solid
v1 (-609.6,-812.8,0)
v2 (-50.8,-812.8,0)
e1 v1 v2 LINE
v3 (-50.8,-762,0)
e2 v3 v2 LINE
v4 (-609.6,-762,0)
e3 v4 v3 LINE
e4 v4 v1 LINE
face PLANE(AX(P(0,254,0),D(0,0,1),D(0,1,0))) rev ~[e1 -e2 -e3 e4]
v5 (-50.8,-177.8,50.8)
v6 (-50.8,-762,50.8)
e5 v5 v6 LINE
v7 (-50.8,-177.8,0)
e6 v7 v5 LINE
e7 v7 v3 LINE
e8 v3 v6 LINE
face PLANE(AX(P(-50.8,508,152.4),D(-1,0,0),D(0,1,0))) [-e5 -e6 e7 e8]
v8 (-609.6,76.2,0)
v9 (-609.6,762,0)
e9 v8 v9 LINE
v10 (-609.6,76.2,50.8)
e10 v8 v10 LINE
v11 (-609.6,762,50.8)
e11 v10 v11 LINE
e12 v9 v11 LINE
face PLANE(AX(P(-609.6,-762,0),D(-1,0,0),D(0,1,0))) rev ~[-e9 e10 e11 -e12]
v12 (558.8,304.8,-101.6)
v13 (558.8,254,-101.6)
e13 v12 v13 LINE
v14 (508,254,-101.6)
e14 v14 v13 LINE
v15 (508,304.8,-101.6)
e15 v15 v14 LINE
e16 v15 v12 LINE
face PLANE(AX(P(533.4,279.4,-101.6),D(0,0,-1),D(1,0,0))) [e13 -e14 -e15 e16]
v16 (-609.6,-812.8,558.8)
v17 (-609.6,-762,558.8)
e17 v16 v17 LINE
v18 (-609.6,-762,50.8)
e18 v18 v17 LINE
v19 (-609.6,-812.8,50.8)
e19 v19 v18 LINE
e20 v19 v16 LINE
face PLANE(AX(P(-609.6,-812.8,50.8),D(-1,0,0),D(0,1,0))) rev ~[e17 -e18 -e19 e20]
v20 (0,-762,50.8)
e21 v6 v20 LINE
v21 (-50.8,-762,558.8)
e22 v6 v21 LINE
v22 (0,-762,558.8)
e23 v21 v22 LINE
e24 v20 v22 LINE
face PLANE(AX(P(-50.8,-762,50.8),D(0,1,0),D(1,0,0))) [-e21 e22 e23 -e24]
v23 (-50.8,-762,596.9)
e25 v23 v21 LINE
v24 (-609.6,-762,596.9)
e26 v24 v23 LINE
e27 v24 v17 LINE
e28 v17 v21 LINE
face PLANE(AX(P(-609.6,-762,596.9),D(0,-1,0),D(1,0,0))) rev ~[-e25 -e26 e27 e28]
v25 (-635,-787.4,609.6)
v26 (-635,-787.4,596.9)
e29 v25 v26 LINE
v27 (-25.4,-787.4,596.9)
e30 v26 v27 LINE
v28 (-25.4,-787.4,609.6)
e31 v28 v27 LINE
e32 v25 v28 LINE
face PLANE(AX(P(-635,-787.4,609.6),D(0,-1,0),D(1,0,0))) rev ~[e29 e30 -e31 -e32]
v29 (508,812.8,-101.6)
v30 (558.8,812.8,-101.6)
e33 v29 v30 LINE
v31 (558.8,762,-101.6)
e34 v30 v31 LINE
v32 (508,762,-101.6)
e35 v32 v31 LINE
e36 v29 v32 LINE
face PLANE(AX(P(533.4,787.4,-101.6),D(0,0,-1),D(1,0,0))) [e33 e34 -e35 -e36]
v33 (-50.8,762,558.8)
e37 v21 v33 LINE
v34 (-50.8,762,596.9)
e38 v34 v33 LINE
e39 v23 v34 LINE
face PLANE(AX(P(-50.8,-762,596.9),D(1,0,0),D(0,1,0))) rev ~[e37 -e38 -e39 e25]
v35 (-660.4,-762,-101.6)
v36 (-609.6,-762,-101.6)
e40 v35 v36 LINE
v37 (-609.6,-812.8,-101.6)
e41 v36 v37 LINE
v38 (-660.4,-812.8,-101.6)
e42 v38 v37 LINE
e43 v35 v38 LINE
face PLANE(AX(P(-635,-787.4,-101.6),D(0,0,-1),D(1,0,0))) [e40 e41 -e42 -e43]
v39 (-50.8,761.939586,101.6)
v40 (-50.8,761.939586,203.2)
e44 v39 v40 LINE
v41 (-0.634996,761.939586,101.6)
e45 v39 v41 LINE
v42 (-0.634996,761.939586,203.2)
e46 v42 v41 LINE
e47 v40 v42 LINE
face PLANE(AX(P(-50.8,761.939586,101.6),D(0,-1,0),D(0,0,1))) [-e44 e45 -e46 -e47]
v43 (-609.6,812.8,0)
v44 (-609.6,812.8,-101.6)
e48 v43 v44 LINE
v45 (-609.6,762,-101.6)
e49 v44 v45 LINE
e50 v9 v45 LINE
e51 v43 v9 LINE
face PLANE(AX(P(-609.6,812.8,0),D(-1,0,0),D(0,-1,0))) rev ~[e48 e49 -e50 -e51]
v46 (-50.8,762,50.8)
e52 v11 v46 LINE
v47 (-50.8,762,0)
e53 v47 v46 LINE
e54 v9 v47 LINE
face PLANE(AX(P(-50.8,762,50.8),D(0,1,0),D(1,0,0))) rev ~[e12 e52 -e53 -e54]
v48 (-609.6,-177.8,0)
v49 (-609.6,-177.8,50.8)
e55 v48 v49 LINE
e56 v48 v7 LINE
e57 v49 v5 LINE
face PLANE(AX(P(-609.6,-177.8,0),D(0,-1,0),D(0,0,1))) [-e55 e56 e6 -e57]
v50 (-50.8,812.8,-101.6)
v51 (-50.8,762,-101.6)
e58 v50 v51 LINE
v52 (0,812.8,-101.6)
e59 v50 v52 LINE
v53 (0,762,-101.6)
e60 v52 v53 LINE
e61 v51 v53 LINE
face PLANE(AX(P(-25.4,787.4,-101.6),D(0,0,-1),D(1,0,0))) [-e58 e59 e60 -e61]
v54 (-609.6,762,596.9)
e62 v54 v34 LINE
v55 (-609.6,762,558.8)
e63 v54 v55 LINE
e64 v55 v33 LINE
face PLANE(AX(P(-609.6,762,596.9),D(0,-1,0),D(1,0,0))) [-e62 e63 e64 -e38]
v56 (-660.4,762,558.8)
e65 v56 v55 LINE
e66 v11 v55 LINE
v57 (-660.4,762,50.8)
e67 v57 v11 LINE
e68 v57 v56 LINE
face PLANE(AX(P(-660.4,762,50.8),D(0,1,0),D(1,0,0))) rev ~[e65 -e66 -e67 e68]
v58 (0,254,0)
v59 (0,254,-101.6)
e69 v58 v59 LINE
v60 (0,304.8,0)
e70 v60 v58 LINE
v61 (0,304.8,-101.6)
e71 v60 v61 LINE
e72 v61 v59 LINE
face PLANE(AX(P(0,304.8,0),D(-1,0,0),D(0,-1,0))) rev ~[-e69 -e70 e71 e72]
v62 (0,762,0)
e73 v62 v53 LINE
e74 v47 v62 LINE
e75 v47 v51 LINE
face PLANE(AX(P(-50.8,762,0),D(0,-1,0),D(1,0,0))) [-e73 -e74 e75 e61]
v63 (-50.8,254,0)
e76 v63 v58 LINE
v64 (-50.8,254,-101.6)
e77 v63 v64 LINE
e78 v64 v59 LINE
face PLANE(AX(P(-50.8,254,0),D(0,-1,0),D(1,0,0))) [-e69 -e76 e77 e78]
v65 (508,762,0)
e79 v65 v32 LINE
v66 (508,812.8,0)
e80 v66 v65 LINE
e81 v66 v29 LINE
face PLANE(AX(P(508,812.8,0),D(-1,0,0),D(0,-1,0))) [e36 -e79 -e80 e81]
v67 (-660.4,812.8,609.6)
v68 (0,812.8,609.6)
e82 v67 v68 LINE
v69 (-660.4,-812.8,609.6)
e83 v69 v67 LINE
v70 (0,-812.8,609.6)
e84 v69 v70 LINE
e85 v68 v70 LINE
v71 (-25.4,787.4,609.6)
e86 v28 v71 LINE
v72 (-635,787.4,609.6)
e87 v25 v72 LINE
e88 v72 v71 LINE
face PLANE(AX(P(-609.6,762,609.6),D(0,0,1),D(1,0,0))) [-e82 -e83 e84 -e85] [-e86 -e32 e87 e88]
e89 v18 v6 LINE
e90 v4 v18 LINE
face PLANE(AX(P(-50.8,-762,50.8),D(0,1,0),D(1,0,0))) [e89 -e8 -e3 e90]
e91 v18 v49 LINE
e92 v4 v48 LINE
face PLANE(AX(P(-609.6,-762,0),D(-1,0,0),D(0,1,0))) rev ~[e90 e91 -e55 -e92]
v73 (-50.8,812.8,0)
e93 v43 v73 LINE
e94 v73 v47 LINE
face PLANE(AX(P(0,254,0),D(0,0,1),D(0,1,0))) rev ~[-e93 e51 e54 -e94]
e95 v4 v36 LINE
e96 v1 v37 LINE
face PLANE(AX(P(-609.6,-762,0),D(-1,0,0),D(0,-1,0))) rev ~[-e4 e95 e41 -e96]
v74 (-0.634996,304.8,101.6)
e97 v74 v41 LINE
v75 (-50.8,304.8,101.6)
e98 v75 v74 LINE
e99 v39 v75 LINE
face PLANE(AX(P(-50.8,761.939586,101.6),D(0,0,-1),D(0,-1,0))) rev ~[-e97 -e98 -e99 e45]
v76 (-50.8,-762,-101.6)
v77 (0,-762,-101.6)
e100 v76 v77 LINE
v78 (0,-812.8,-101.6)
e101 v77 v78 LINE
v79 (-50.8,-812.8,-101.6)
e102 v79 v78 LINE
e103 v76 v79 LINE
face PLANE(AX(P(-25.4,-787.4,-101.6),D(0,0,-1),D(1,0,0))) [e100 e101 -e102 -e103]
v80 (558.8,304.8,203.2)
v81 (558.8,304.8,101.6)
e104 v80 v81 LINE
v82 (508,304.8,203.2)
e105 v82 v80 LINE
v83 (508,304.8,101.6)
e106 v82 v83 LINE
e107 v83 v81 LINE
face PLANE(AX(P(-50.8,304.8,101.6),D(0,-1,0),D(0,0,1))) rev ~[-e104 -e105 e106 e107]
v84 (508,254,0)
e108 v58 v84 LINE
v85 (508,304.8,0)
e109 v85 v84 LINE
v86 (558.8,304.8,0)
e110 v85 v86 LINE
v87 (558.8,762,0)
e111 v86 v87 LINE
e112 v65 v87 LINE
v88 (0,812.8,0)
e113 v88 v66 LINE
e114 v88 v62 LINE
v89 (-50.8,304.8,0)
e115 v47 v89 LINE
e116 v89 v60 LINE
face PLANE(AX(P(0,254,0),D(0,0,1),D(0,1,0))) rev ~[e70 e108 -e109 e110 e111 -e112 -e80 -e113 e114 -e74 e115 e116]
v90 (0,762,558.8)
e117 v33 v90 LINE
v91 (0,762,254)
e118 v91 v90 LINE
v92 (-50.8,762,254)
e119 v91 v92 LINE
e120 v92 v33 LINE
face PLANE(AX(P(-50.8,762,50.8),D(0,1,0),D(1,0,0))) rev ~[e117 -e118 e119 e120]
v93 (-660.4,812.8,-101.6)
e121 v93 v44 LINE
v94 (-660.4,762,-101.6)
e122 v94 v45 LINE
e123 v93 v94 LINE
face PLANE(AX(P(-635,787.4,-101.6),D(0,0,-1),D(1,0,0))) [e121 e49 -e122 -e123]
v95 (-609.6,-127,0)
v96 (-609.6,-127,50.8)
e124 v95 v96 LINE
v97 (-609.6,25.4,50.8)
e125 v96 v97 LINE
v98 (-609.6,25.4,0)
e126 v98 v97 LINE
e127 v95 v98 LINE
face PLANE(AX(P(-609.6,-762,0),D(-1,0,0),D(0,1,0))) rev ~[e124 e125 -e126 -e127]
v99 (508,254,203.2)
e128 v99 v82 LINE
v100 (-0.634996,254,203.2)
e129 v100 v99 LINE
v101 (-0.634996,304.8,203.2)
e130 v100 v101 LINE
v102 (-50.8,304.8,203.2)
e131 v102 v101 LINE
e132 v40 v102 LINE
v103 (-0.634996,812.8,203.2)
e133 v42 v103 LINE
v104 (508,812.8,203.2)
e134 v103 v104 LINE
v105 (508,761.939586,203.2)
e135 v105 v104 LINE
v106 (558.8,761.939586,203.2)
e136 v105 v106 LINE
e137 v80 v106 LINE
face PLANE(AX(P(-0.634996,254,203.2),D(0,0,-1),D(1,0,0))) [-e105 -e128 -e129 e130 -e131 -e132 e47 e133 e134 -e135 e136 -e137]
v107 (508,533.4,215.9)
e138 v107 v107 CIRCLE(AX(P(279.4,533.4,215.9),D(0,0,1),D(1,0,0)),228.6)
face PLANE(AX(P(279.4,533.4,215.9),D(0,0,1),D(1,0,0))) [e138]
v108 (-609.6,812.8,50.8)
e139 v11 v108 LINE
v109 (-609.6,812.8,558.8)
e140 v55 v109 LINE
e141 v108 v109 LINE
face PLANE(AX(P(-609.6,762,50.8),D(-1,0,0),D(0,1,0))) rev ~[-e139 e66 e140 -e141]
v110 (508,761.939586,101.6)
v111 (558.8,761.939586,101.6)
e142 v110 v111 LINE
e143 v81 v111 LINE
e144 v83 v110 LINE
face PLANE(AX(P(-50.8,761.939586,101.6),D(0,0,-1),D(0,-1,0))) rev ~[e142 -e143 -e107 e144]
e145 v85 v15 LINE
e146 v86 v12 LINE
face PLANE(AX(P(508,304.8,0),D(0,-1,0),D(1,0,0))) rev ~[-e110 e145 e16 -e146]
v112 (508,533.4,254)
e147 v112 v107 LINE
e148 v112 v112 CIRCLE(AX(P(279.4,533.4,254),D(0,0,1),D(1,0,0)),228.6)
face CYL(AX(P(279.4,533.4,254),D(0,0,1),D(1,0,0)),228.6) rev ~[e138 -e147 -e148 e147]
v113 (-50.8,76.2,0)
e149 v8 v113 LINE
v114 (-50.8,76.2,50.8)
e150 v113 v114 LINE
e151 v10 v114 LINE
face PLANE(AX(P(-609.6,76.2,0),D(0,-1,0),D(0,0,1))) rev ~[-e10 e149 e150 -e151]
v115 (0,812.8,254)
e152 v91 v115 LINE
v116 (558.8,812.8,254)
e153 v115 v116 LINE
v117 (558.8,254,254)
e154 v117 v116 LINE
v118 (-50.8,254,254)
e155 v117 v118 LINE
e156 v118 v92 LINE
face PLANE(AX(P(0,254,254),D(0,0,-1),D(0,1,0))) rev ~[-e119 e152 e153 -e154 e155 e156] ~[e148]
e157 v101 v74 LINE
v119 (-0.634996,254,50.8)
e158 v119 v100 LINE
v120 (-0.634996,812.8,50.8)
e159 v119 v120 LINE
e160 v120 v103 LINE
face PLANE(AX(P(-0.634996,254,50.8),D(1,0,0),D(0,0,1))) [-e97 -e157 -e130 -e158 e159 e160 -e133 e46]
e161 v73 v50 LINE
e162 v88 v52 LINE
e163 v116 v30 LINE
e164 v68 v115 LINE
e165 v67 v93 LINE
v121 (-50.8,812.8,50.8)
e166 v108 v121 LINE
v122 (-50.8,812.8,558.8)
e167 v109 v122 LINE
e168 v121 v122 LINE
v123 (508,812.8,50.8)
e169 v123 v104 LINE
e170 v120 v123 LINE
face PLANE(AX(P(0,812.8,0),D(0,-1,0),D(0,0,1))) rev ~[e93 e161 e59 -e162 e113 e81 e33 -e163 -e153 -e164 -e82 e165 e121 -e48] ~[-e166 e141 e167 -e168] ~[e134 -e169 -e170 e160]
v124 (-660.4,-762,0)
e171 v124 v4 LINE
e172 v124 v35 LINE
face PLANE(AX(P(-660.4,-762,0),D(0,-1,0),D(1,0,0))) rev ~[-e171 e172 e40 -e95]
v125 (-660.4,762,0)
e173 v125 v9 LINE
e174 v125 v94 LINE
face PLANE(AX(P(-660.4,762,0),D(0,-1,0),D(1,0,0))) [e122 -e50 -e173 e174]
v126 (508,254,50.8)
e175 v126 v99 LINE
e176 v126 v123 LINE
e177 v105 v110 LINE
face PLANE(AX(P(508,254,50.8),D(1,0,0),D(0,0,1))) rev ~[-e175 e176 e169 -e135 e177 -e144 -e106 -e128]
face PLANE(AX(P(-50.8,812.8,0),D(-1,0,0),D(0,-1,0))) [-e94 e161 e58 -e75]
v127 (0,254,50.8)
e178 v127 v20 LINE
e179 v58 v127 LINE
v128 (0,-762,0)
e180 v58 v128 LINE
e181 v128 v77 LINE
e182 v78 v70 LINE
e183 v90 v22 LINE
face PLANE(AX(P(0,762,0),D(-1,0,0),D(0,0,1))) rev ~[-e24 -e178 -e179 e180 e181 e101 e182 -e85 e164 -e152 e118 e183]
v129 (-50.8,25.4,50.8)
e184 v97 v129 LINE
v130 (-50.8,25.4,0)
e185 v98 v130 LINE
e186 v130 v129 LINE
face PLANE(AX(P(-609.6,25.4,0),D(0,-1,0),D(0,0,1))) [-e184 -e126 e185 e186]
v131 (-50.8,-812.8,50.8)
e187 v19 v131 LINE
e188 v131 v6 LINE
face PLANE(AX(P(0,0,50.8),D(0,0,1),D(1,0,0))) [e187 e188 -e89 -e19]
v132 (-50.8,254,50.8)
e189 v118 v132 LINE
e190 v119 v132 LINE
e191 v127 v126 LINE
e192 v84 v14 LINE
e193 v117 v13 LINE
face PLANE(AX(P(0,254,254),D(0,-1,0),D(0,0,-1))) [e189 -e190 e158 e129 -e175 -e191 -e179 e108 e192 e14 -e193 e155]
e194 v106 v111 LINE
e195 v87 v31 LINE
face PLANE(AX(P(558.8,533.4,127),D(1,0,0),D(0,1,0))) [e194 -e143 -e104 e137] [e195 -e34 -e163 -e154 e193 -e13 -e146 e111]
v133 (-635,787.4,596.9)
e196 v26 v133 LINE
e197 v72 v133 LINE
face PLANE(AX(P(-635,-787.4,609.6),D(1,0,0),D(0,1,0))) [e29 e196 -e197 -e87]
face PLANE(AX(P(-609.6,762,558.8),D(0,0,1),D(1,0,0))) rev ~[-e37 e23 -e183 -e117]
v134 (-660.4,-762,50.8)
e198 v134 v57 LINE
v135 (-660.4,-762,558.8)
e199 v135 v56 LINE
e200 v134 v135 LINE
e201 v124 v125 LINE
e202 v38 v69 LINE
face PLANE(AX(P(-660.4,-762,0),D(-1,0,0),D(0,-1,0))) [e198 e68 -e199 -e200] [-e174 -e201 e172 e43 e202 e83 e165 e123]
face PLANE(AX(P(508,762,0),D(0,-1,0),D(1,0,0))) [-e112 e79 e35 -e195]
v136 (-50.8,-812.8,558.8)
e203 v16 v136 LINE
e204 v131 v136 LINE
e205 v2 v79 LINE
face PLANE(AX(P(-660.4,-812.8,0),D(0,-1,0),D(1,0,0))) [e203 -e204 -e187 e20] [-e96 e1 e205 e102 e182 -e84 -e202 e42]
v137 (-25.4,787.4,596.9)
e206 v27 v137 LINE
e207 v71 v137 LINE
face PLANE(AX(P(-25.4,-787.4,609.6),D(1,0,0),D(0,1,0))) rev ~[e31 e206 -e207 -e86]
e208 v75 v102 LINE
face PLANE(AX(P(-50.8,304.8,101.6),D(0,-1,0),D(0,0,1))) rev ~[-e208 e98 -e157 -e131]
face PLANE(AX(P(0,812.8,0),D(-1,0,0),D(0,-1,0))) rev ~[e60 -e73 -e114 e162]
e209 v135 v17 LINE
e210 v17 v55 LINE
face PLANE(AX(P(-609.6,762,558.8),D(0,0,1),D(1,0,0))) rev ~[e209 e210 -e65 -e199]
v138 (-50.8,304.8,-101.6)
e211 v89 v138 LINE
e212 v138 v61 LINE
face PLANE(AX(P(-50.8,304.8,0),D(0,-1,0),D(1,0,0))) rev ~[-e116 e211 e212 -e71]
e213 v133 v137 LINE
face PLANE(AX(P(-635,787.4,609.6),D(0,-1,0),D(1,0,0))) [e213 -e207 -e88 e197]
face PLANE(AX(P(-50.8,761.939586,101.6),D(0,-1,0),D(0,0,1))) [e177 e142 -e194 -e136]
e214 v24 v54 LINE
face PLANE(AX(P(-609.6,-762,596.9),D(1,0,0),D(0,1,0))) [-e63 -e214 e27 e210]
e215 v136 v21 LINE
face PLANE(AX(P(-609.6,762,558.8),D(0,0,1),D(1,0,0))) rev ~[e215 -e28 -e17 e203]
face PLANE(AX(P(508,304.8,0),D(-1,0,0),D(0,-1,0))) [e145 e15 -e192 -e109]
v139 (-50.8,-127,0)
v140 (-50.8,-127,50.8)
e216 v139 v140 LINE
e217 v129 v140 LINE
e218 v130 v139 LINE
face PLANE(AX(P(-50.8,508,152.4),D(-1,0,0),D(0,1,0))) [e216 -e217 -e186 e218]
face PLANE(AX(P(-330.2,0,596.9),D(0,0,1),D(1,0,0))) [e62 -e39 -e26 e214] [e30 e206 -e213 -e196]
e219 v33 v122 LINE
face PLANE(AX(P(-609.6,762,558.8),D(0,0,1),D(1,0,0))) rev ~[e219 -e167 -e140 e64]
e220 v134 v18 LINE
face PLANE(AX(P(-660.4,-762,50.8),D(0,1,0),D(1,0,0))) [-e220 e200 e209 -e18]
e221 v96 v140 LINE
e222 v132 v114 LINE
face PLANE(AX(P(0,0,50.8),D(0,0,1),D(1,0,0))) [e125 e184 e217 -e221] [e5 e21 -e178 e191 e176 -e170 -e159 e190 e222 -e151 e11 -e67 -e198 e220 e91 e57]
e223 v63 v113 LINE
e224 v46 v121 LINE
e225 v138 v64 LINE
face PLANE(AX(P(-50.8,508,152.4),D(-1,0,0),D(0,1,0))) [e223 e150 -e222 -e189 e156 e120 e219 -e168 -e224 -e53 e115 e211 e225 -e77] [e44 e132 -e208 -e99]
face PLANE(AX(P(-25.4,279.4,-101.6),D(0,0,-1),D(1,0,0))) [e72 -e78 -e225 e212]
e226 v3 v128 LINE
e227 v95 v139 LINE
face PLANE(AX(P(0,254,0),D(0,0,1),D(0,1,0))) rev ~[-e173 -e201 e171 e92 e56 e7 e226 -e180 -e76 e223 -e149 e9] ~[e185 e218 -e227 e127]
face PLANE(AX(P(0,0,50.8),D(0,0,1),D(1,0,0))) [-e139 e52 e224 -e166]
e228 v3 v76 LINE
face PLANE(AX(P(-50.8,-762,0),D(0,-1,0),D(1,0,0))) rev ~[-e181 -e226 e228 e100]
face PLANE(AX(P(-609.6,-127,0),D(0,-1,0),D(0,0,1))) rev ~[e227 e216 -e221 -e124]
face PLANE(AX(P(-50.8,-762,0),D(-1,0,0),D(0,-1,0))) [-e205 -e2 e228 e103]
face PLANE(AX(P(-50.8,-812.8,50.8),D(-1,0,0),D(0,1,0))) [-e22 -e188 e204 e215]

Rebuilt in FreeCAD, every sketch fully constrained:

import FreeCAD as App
import Part
import Sketcher
from FreeCAD import Vector
Q = App.Units.Quantity

doc = App.newDocument("Part")
body = doc.addObject("PartDesign::Body", "Body")

# Sketch on XY plane
sketch1 = doc.addObject("Sketcher::SketchObject", "Sketch")
body.addObject(sketch1)
sketch1.AttachmentSupport = (doc.XY_Plane, [""])
sketch1.MapMode = "FlatFace"
sketch1.addGeometry([
    Part.LineSegment(Vector(-660.4, 812.8, 0), Vector(-660.4, -812.8, 0)),  # 0
    Part.LineSegment(Vector(-660.4, -812.8, 0), Vector(660.4, -812.8, 0)),  # 1
    Part.LineSegment(Vector(660.4, -812.8, 0), Vector(660.4, 812.8, 0)),  # 2
    Part.LineSegment(Vector(660.4, 812.8, 0), Vector(-660.4, 812.8, 0)),  # 3
    Part.LineSegment(Vector(609.6, -762, 0), Vector(-609.6, -762, 0)),  # 4
    Part.LineSegment(Vector(-609.6, -762, 0), Vector(-609.6, 762, 0)),  # 5
    Part.LineSegment(Vector(-609.6, 762, 0), Vector(609.6, 762, 0)),  # 6
    Part.LineSegment(Vector(609.6, 762, 0), Vector(609.6, -762, 0)),  # 7
], False)
sketch1.addConstraint([
    Sketcher.Constraint("Coincident", 0, 2, 1, 1),
    Sketcher.Constraint("Coincident", 1, 2, 2, 1),
    Sketcher.Constraint("Coincident", 2, 2, 3, 1),
    Sketcher.Constraint("Coincident", 3, 2, 0, 1),
    Sketcher.Constraint("Coincident", 4, 2, 5, 1),
    Sketcher.Constraint("Coincident", 5, 2, 6, 1),
    Sketcher.Constraint("Coincident", 6, 2, 7, 1),
    Sketcher.Constraint("Coincident", 7, 2, 4, 1),
    Sketcher.Constraint("Vertical", 0),
    Sketcher.Constraint("Horizontal", 1),
    Sketcher.Constraint("Vertical", 2),
    Sketcher.Constraint("Horizontal", 3),
    Sketcher.Constraint("Horizontal", 4),
    Sketcher.Constraint("Vertical", 5),
    Sketcher.Constraint("Horizontal", 6),
    Sketcher.Constraint("Vertical", 7),
    Sketcher.Constraint("Symmetric", 0, 2, 2, 2, -1, 1),
    Sketcher.Constraint("Symmetric", 4, 2, 6, 2, -1, 1),
    Sketcher.Constraint("DistanceX", 1, 1, 1, 2, Q("52 in")),
    Sketcher.Constraint("DistanceX", 4, 2, 4, 1, Q("48 in")),
    Sketcher.Constraint("DistanceY", 0, 2, 0, 1, Q("64 in")),
    Sketcher.Constraint("DistanceY", 5, 1, 5, 2, Q("60 in")),
])
pad1 = doc.addObject("PartDesign::Pad", "Pad")
body.addObject(pad1)
pad1.Profile = sketch1
pad1.Length = Q("2 in")

# Sketch on XY plane
sketch2 = doc.addObject("Sketcher::SketchObject", "Sketch001")
body.addObject(sketch2)
sketch2.AttachmentSupport = (doc.XY_Plane, [""])
sketch2.MapMode = "FlatFace"
sketch2.AttachmentOffset = App.Placement(Vector(0, 0, 2 * 25.4), App.Rotation())
sketch2.addGeometry([
    Part.LineSegment(Vector(-660.4, 812.8, 0), Vector(-660.4, 762, 0)),  # 0
    Part.LineSegment(Vector(-660.4, 762, 0), Vector(-609.6, 762, 0)),  # 1
    Part.LineSegment(Vector(-609.6, 762, 0), Vector(-609.6, 812.8, 0)),  # 2
    Part.LineSegment(Vector(-609.6, 812.8, 0), Vector(-660.4, 812.8, 0)),  # 3
    Part.LineSegment(Vector(609.6, 812.8, 0), Vector(609.6, 762, 0)),  # 4
    Part.LineSegment(Vector(609.6, 762, 0), Vector(660.4, 762, 0)),  # 5
    Part.LineSegment(Vector(660.4, 762, 0), Vector(660.4, 812.8, 0)),  # 6
    Part.LineSegment(Vector(660.4, 812.8, 0), Vector(609.6, 812.8, 0)),  # 7
    Part.LineSegment(Vector(609.6, -762, 0), Vector(609.6, -812.8, 0)),  # 8
    Part.LineSegment(Vector(609.6, -812.8, 0), Vector(660.4, -812.8, 0)),  # 9
    Part.LineSegment(Vector(660.4, -812.8, 0), Vector(660.4, -762, 0)),  # 10
    Part.LineSegment(Vector(660.4, -762, 0), Vector(609.6, -762, 0)),  # 11
    Part.LineSegment(Vector(-660.4, -762, 0), Vector(-660.4, -812.8, 0)),  # 12
    Part.LineSegment(Vector(-660.4, -812.8, 0), Vector(-609.6, -812.8, 0)),  # 13
    Part.LineSegment(Vector(-609.6, -812.8, 0), Vector(-609.6, -762, 0)),  # 14
    Part.LineSegment(Vector(-609.6, -762, 0), Vector(-660.4, -762, 0)),  # 15
], False)
sketch2.addConstraint([
    Sketcher.Constraint("Coincident", 0, 2, 1, 1),
    Sketcher.Constraint("Coincident", 1, 2, 2, 1),
    Sketcher.Constraint("Coincident", 2, 2, 3, 1),
    Sketcher.Constraint("Coincident", 3, 2, 0, 1),
    Sketcher.Constraint("Coincident", 4, 2, 5, 1),
    Sketcher.Constraint("Coincident", 5, 2, 6, 1),
    Sketcher.Constraint("Coincident", 6, 2, 7, 1),
    Sketcher.Constraint("Coincident", 7, 2, 4, 1),
    Sketcher.Constraint("Coincident", 8, 2, 9, 1),
    Sketcher.Constraint("Coincident", 9, 2, 10, 1),
    Sketcher.Constraint("Coincident", 10, 2, 11, 1),
    Sketcher.Constraint("Coincident", 11, 2, 8, 1),
    Sketcher.Constraint("Coincident", 12, 2, 13, 1),
    Sketcher.Constraint("Coincident", 13, 2, 14, 1),
    Sketcher.Constraint("Coincident", 14, 2, 15, 1),
    Sketcher.Constraint("Coincident", 15, 2, 12, 1),
    Sketcher.Constraint("Vertical", 0),
    Sketcher.Constraint("Horizontal", 1),
    Sketcher.Constraint("Vertical", 2),
    Sketcher.Constraint("Horizontal", 3),
    Sketcher.Constraint("Vertical", 4),
    Sketcher.Constraint("Horizontal", 5),
    Sketcher.Constraint("Vertical", 6),
    Sketcher.Constraint("Horizontal", 7),
    Sketcher.Constraint("Vertical", 8),
    Sketcher.Constraint("Horizontal", 9),
    Sketcher.Constraint("Vertical", 10),
    Sketcher.Constraint("Horizontal", 11),
    Sketcher.Constraint("Vertical", 12),
    Sketcher.Constraint("Horizontal", 13),
    Sketcher.Constraint("Vertical", 14),
    Sketcher.Constraint("Horizontal", 15),
    Sketcher.Constraint("Symmetric", 2, 2, 8, 2, -1, 1),
    Sketcher.Constraint("Symmetric", 0, 2, 10, 2, -1, 1),
    Sketcher.Constraint("Symmetric", 6, 2, 12, 2, -1, 1),
    Sketcher.Constraint("Symmetric", 4, 2, 14, 2, -1, 1),
    Sketcher.Constraint("Symmetric", 1, 2, 4, 2, -2),
    Sketcher.Constraint("Symmetric", 3, 2, 6, 2, -2),
    Sketcher.Constraint("Equal", 15, 0),
    Sketcher.Constraint("DistanceX", 1, 1, 1, 2, Q("2 in")),
    Sketcher.Constraint("DistanceX", 0, 2, -1, 1, Q("26 in")),
    Sketcher.Constraint("DistanceY", -1, 1, 0, 2, Q("30 in")),
])
pad2 = doc.addObject("PartDesign::Pad", "Pad001")
body.addObject(pad2)
pad2.Profile = sketch2
pad2.Length = Q("20 in")

# Sketch on XY plane
sketch3 = doc.addObject("Sketcher::SketchObject", "Sketch002")
body.addObject(sketch3)
sketch3.AttachmentSupport = (doc.XY_Plane, [""])
sketch3.MapMode = "FlatFace"
sketch3.AttachmentOffset = App.Placement(Vector(0, 0, 22 * 25.4), App.Rotation())
sketch3.addGeometry([
    Part.LineSegment(Vector(-660.4, 812.8, 0), Vector(-660.4, -812.8, 0)),  # 0
    Part.LineSegment(Vector(-660.4, -812.8, 0), Vector(660.4, -812.8, 0)),  # 1
    Part.LineSegment(Vector(660.4, -812.8, 0), Vector(660.4, 812.8, 0)),  # 2
    Part.LineSegment(Vector(660.4, 812.8, 0), Vector(-660.4, 812.8, 0)),  # 3
    Part.LineSegment(Vector(609.6, -762, 0), Vector(-609.6, -762, 0)),  # 4
    Part.LineSegment(Vector(-609.6, -762, 0), Vector(-609.6, 762, 0)),  # 5
    Part.LineSegment(Vector(-609.6, 762, 0), Vector(609.6, 762, 0)),  # 6
    Part.LineSegment(Vector(609.6, 762, 0), Vector(609.6, -762, 0)),  # 7
], False)
sketch3.addConstraint([
    Sketcher.Constraint("Coincident", 0, 2, 1, 1),
    Sketcher.Constraint("Coincident", 1, 2, 2, 1),
    Sketcher.Constraint("Coincident", 2, 2, 3, 1),
    Sketcher.Constraint("Coincident", 3, 2, 0, 1),
    Sketcher.Constraint("Coincident", 4, 2, 5, 1),
    Sketcher.Constraint("Coincident", 5, 2, 6, 1),
    Sketcher.Constraint("Coincident", 6, 2, 7, 1),
    Sketcher.Constraint("Coincident", 7, 2, 4, 1),
    Sketcher.Constraint("Vertical", 0),
    Sketcher.Constraint("Horizontal", 1),
    Sketcher.Constraint("Vertical", 2),
    Sketcher.Constraint("Horizontal", 3),
    Sketcher.Constraint("Horizontal", 4),
    Sketcher.Constraint("Vertical", 5),
    Sketcher.Constraint("Horizontal", 6),
    Sketcher.Constraint("Vertical", 7),
    Sketcher.Constraint("Symmetric", 0, 2, 2, 2, -1, 1),
    Sketcher.Constraint("Symmetric", 4, 2, 6, 2, -1, 1),
    Sketcher.Constraint("DistanceX", 1, 1, 1, 2, Q("52 in")),
    Sketcher.Constraint("DistanceX", 4, 2, 4, 1, Q("48 in")),
    Sketcher.Constraint("DistanceY", 0, 2, 0, 1, Q("64 in")),
    Sketcher.Constraint("DistanceY", 5, 1, 5, 2, Q("60 in")),
])
pad3 = doc.addObject("PartDesign::Pad", "Pad002")
body.addObject(pad3)
pad3.Profile = sketch3
pad3.Length = Q("2 in")

# Sketch on XZ plane
sketch4 = doc.addObject("Sketcher::SketchObject", "Sketch003")
body.addObject(sketch4)
sketch4.AttachmentSupport = (doc.XZ_Plane, [""])
sketch4.MapMode = "FlatFace"
sketch4.AttachmentOffset = App.Placement(Vector(0, 0, -30 * 25.4), App.Rotation())
sketch4.addGeometry([
    Part.LineSegment(Vector(-609.6, 609.6, 0), Vector(-609.6, 558.8, 0)),
    Part.LineSegment(Vector(-609.6, 558.8, 0), Vector(0, 558.8, 0)),
    Part.LineSegment(Vector(0, 558.8, 0), Vector(0, 609.6, 0)),
    Part.LineSegment(Vector(0, 609.6, 0), Vector(-609.6, 609.6, 0)),
], False)
sketch4.addConstraint([
    Sketcher.Constraint("Coincident", 0, 2, 1, 1),
    Sketcher.Constraint("Coincident", 1, 2, 2, 1),
    Sketcher.Constraint("Coincident", 2, 2, 3, 1),
    Sketcher.Constraint("Coincident", 3, 2, 0, 1),
    Sketcher.Constraint("Vertical", 0),
    Sketcher.Constraint("Horizontal", 1),
    Sketcher.Constraint("Vertical", 2),
    Sketcher.Constraint("Horizontal", 3),
    Sketcher.Constraint("PointOnObject", 1, 2, -2),
    Sketcher.Constraint("DistanceX", 1, 1, 1, 2, Q("24 in")),
    Sketcher.Constraint("DistanceY", 0, 2, 0, 1, Q("2 in")),
    Sketcher.Constraint("DistanceY", -1, 1, 0, 2, Q("22 in")),
])
pad4 = doc.addObject("PartDesign::Pad", "Pad003")
body.addObject(pad4)
pad4.Profile = sketch4
pad4.Type = "UpToLast"

# Sketch on XY plane
sketch5 = doc.addObject("Sketcher::SketchObject", "Sketch004")
body.addObject(sketch5)
sketch5.AttachmentSupport = (doc.XY_Plane, [""])
sketch5.MapMode = "FlatFace"
sketch5.AttachmentOffset = App.Placement(Vector(0, 0, 24 * 25.4), App.Rotation())
sketch5.addGeometry([
    Part.LineSegment(Vector(0, 812.8, 0), Vector(0, -812.8, 0)),
    Part.LineSegment(Vector(0, -812.8, 0), Vector(660.4, -812.8, 0)),
    Part.LineSegment(Vector(660.4, -812.8, 0), Vector(660.4, 812.8, 0)),
    Part.LineSegment(Vector(660.4, 812.8, 0), Vector(0, 812.8, 0)),
], False)
sketch5.addConstraint([
    Sketcher.Constraint("Coincident", 0, 2, 1, 1),
    Sketcher.Constraint("Coincident", 1, 2, 2, 1),
    Sketcher.Constraint("Coincident", 2, 2, 3, 1),
    Sketcher.Constraint("Coincident", 3, 2, 0, 1),
    Sketcher.Constraint("Vertical", 0),
    Sketcher.Constraint("Horizontal", 1),
    Sketcher.Constraint("Vertical", 2),
    Sketcher.Constraint("Horizontal", 3),
    Sketcher.Constraint("Symmetric", 0, 2, 3, 2, -1, 1),
    Sketcher.Constraint("DistanceX", 1, 1, 1, 2, Q("26 in")),
    Sketcher.Constraint("DistanceY", 0, 2, 0, 1, Q("64 in")),
])
pocket1 = doc.addObject("PartDesign::Pocket", "Pocket")
body.addObject(pocket1)
pocket1.Profile = sketch5
pocket1.Type = "ThroughAll"

# Sketch on XY plane
sketch6 = doc.addObject("Sketcher::SketchObject", "Sketch005")
body.addObject(sketch6)
sketch6.AttachmentSupport = (doc.XY_Plane, [""])
sketch6.MapMode = "FlatFace"
sketch6.AttachmentOffset = App.Placement(Vector(0, 0, 2 * 25.4), App.Rotation())
sketch6.addGeometry([
    Part.LineSegment(Vector(-50.8, 812.8, 0), Vector(-50.8, 762, 0)),  # 0
    Part.LineSegment(Vector(-50.8, 762, 0), Vector(0, 762, 0)),  # 1
    Part.LineSegment(Vector(0, 762, 0), Vector(0, 812.8, 0)),  # 2
    Part.LineSegment(Vector(0, 812.8, 0), Vector(-50.8, 812.8, 0)),  # 3
    Part.LineSegment(Vector(-50.8, -762, 0), Vector(-50.8, -812.8, 0)),  # 4
    Part.LineSegment(Vector(-50.8, -812.8, 0), Vector(0, -812.8, 0)),  # 5
    Part.LineSegment(Vector(0, -812.8, 0), Vector(0, -762, 0)),  # 6
    Part.LineSegment(Vector(0, -762, 0), Vector(-50.8, -762, 0)),  # 7
], False)
sketch6.addConstraint([
    Sketcher.Constraint("Coincident", 0, 2, 1, 1),
    Sketcher.Constraint("Coincident", 1, 2, 2, 1),
    Sketcher.Constraint("Coincident", 2, 2, 3, 1),
    Sketcher.Constraint("Coincident", 3, 2, 0, 1),
    Sketcher.Constraint("Coincident", 4, 2, 5, 1),
    Sketcher.Constraint("Coincident", 5, 2, 6, 1),
    Sketcher.Constraint("Coincident", 6, 2, 7, 1),
    Sketcher.Constraint("Coincident", 7, 2, 4, 1),
    Sketcher.Constraint("Vertical", 0),
    Sketcher.Constraint("Horizontal", 1),
    Sketcher.Constraint("Vertical", 2),
    Sketcher.Constraint("Horizontal", 3),
    Sketcher.Constraint("Vertical", 4),
    Sketcher.Constraint("Horizontal", 5),
    Sketcher.Constraint("Vertical", 6),
    Sketcher.Constraint("Horizontal", 7),
    Sketcher.Constraint("Symmetric", 2, 2, 5, 2, -1, 1),
    Sketcher.Constraint("Symmetric", 1, 2, 6, 2, -1),
    Sketcher.Constraint("Vertical", 3, 2, 4, 2),
    Sketcher.Constraint("Equal", 7, 0),
    Sketcher.Constraint("DistanceX", 1, 1, 1, 2, Q("2 in")),
    Sketcher.Constraint("DistanceY", -1, 1, 0, 2, Q("30 in")),
])
pad5 = doc.addObject("PartDesign::Pad", "Pad004")
body.addObject(pad5)
pad5.Profile = sketch6
pad5.Type = "UpToLast"

# Sketch on XZ plane
sketch7 = doc.addObject("Sketcher::SketchObject", "Sketch006")
body.addObject(sketch7)
sketch7.AttachmentSupport = (doc.XZ_Plane, [""])
sketch7.MapMode = "FlatFace"
sketch7.AttachmentOffset = App.Placement(Vector(0, 0, -30 * 25.4), App.Rotation())
sketch7.addGeometry([
    Part.LineSegment(Vector(-50.8, 50.8, 0), Vector(-50.8, 0, 0)),
    Part.LineSegment(Vector(-50.8, 0, 0), Vector(0, 0, 0)),
    Part.LineSegment(Vector(0, 0, 0), Vector(0, 50.8, 0)),
    Part.LineSegment(Vector(0, 50.8, 0), Vector(-50.8, 50.8, 0)),
], False)
sketch7.addConstraint([
    Sketcher.Constraint("Coincident", 0, 2, 1, 1),
    Sketcher.Constraint("Coincident", 1, 2, 2, 1),
    Sketcher.Constraint("Coincident", 2, 2, 3, 1),
    Sketcher.Constraint("Coincident", 3, 2, 0, 1),
    Sketcher.Constraint("Vertical", 0),
    Sketcher.Constraint("Horizontal", 1),
    Sketcher.Constraint("Vertical", 2),
    Sketcher.Constraint("Horizontal", 3),
    Sketcher.Constraint("Coincident", 1, 2, -1, 1),
    Sketcher.Constraint("Equal", 3, 0),
    Sketcher.Constraint("DistanceX", 1, 1, 1, 2, Q("2 in")),
])
pad6 = doc.addObject("PartDesign::Pad", "Pad005")
body.addObject(pad6)
pad6.Profile = sketch7
pad6.Type = "UpToLast"

# Sketch on YZ plane
sketch8 = doc.addObject("Sketcher::SketchObject", "Sketch007")
body.addObject(sketch8)
sketch8.AttachmentSupport = (doc.YZ_Plane, [""])
sketch8.MapMode = "FlatFace"
sketch8.addGeometry([
    Part.LineSegment(Vector(254, 254, 0), Vector(254, 0, 0)),
    Part.LineSegment(Vector(254, 0, 0), Vector(812.8, 0, 0)),
    Part.LineSegment(Vector(812.8, 0, 0), Vector(812.8, 254, 0)),
    Part.LineSegment(Vector(812.8, 254, 0), Vector(254, 254, 0)),
], False)
sketch8.addConstraint([
    Sketcher.Constraint("Coincident", 0, 2, 1, 1),
    Sketcher.Constraint("Coincident", 1, 2, 2, 1),
    Sketcher.Constraint("Coincident", 2, 2, 3, 1),
    Sketcher.Constraint("Coincident", 3, 2, 0, 1),
    Sketcher.Constraint("Vertical", 0),
    Sketcher.Constraint("Horizontal", 1),
    Sketcher.Constraint("Vertical", 2),
    Sketcher.Constraint("Horizontal", 3),
    Sketcher.Constraint("PointOnObject", 0, 2, -1),
    Sketcher.Constraint("DistanceX", 1, 1, 1, 2, Q("22 in")),
    Sketcher.Constraint("DistanceY", 0, 2, 0, 1, Q("10 in")),
    Sketcher.Constraint("DistanceX", -1, 1, 0, 2, Q("10 in")),
])
pad7 = doc.addObject("PartDesign::Pad", "Pad006")
body.addObject(pad7)
pad7.Profile = sketch8
pad7.Length = Q("22 in")

# Sketch on YZ plane
sketch9 = doc.addObject("Sketcher::SketchObject", "Sketch008")
body.addObject(sketch9)
sketch9.AttachmentSupport = (doc.YZ_Plane, [""])
sketch9.MapMode = "FlatFace"
sketch9.addGeometry([
    Part.LineSegment(Vector(254, 50.8, 0), Vector(254, 254, 0)),
    Part.LineSegment(Vector(254, 254, 0), Vector(762, 254, 0)),
    Part.LineSegment(Vector(762, 254, 0), Vector(762, 50.8, 0)),
    Part.LineSegment(Vector(762, 50.8, 0), Vector(254, 50.8, 0)),
], False)
sketch9.addConstraint([
    Sketcher.Constraint("Coincident", 0, 2, 1, 1),
    Sketcher.Constraint("Coincident", 1, 2, 2, 1),
    Sketcher.Constraint("Coincident", 2, 2, 3, 1),
    Sketcher.Constraint("Coincident", 3, 2, 0, 1),
    Sketcher.Constraint("Vertical", 0),
    Sketcher.Constraint("Horizontal", 1),
    Sketcher.Constraint("Vertical", 2),
    Sketcher.Constraint("Horizontal", 3),
    Sketcher.Constraint("DistanceX", 1, 1, 1, 2, Q("20 in")),
    Sketcher.Constraint("DistanceY", 0, 1, 0, 2, Q("8 in")),
    Sketcher.Constraint("DistanceX", -1, 1, 0, 2, Q("10 in")),
    Sketcher.Constraint("DistanceY", -1, 1, 0, 2, Q("10 in")),
])
pad8 = doc.addObject("PartDesign::Pad", "Pad007")
body.addObject(pad8)
pad8.Profile = sketch9
pad8.Length = Q("2 in")
pad8.Reversed = True

# Sketch on XZ plane
sketch10 = doc.addObject("Sketcher::SketchObject", "Sketch009")
body.addObject(sketch10)
sketch10.AttachmentSupport = (doc.XZ_Plane, [""])
sketch10.MapMode = "FlatFace"
sketch10.AttachmentOffset = App.Placement(Vector(0, 0, -10 * 25.4), App.Rotation())
sketch10.addGeometry([
    Part.LineSegment(Vector(-0.634996, 203.2, 0), Vector(-0.634996, 50.8, 0)),
    Part.LineSegment(Vector(-0.634996, 50.8, 0), Vector(508, 50.8, 0)),
    Part.LineSegment(Vector(508, 50.8, 0), Vector(508, 203.2, 0)),
    Part.LineSegment(Vector(508, 203.2, 0), Vector(-0.634996, 203.2, 0)),
], False)
sketch10.addConstraint([
    Sketcher.Constraint("Coincident", 0, 2, 1, 1),
    Sketcher.Constraint("Coincident", 1, 2, 2, 1),
    Sketcher.Constraint("Coincident", 2, 2, 3, 1),
    Sketcher.Constraint("Coincident", 3, 2, 0, 1),
    Sketcher.Constraint("Vertical", 0),
    Sketcher.Constraint("Horizontal", 1),
    Sketcher.Constraint("Vertical", 2),
    Sketcher.Constraint("Horizontal", 3),
    Sketcher.Constraint("DistanceY", 0, 2, 0, 1, Q("6 in")),
    Sketcher.Constraint("DistanceY", -1, 1, 0, 2, Q("2 in")),
    Sketcher.Constraint("DistanceX", -1, 1, 1, 2, Q("20 in")),
    Sketcher.Constraint("DistanceX", 1, 1, 1, 2, Q("20.0249999 in")),
])
pocket2 = doc.addObject("PartDesign::Pocket", "Pocket001")
body.addObject(pocket2)
pocket2.Profile = sketch10
pocket2.Type = "ThroughAll"

# Sketch on YZ plane
sketch11 = doc.addObject("Sketcher::SketchObject", "Sketch010")
body.addObject(sketch11)
sketch11.AttachmentSupport = (doc.YZ_Plane, [""])
sketch11.MapMode = "FlatFace"
sketch11.AttachmentOffset = App.Placement(Vector(0, 0, -2 * 25.4), App.Rotation())
sketch11.addGeometry([
    Part.LineSegment(Vector(761.939586, 203.2, 0), Vector(761.939586, 101.6, 0)),
    Part.LineSegment(Vector(761.939586, 101.6, 0), Vector(304.8, 101.6, 0)),
    Part.LineSegment(Vector(304.8, 101.6, 0), Vector(304.8, 203.2, 0)),
    Part.LineSegment(Vector(304.8, 203.2, 0), Vector(761.939586, 203.2, 0)),
], False)
sketch11.addConstraint([
    Sketcher.Constraint("Coincident", 0, 2, 1, 1),
    Sketcher.Constraint("Coincident", 1, 2, 2, 1),
    Sketcher.Constraint("Coincident", 2, 2, 3, 1),
    Sketcher.Constraint("Coincident", 3, 2, 0, 1),
    Sketcher.Constraint("Vertical", 0),
    Sketcher.Constraint("Horizontal", 1),
    Sketcher.Constraint("Vertical", 2),
    Sketcher.Constraint("Horizontal", 3),
    Sketcher.Constraint("DistanceY", 0, 2, 0, 1, Q("4 in")),
    Sketcher.Constraint("DistanceY", -1, 1, 0, 2, Q("4 in")),
    Sketcher.Constraint("DistanceX", -1, 1, 1, 2, Q("12 in")),
    Sketcher.Constraint("DistanceX", 1, 2, 1, 1, Q("457.139586 mm")),
])
pocket3 = doc.addObject("PartDesign::Pocket", "Pocket002")
body.addObject(pocket3)
pocket3.Profile = sketch11
pocket3.Type = "ThroughAll"
pocket3.Reversed = True

# Sketch on XY plane
sketch12 = doc.addObject("Sketcher::SketchObject", "Sketch011")
body.addObject(sketch12)
sketch12.AttachmentSupport = (doc.XY_Plane, [""])
sketch12.MapMode = "FlatFace"
sketch12.AttachmentOffset = App.Placement(Vector(0, 0, 24 * 25.4), App.Rotation())
sketch12.addGeometry([
    Part.LineSegment(Vector(-635, 787.4, 0), Vector(-635, -787.4, 0)),
    Part.LineSegment(Vector(-635, -787.4, 0), Vector(-25.4, -787.4, 0)),
    Part.LineSegment(Vector(-25.4, -787.4, 0), Vector(-25.4, 787.4, 0)),
    Part.LineSegment(Vector(-25.4, 787.4, 0), Vector(-635, 787.4, 0)),
], False)
sketch12.addConstraint([
    Sketcher.Constraint("Coincident", 0, 2, 1, 1),
    Sketcher.Constraint("Coincident", 1, 2, 2, 1),
    Sketcher.Constraint("Coincident", 2, 2, 3, 1),
    Sketcher.Constraint("Coincident", 3, 2, 0, 1),
    Sketcher.Constraint("Vertical", 0),
    Sketcher.Constraint("Horizontal", 1),
    Sketcher.Constraint("Vertical", 2),
    Sketcher.Constraint("Horizontal", 3),
    Sketcher.Constraint("DistanceX", 1, 1, 1, 2, Q("24 in")),
    Sketcher.Constraint("DistanceY", 0, 2, 0, 1, Q("62 in")),
    Sketcher.Constraint("DistanceX", 0, 2, -1, 1, Q("25 in")),
    Sketcher.Constraint("DistanceY", 0, 2, -1, 1, Q("31 in")),
])
pocket4 = doc.addObject("PartDesign::Pocket", "Pocket003")
body.addObject(pocket4)
pocket4.Profile = sketch12
pocket4.Length = Q("0.5 in")

# Sketch on XY plane
sketch13 = doc.addObject("Sketcher::SketchObject", "Sketch012")
body.addObject(sketch13)
sketch13.AttachmentSupport = (doc.XY_Plane, [""])
sketch13.MapMode = "FlatFace"
sketch13.AttachmentOffset = App.Placement(Vector(0, 0, 23.5 * 25.4), App.Rotation())
sketch13.addGeometry([
    Part.LineSegment(Vector(-609.6, 762, 0), Vector(-609.6, -762, 0)),
    Part.LineSegment(Vector(-609.6, -762, 0), Vector(-50.8, -762, 0)),
    Part.LineSegment(Vector(-50.8, -762, 0), Vector(-50.8, 762, 0)),
    Part.LineSegment(Vector(-50.8, 762, 0), Vector(-609.6, 762, 0)),
], False)
sketch13.addConstraint([
    Sketcher.Constraint("Coincident", 0, 2, 1, 1),
    Sketcher.Constraint("Coincident", 1, 2, 2, 1),
    Sketcher.Constraint("Coincident", 2, 2, 3, 1),
    Sketcher.Constraint("Coincident", 3, 2, 0, 1),
    Sketcher.Constraint("Vertical", 0),
    Sketcher.Constraint("Horizontal", 1),
    Sketcher.Constraint("Vertical", 2),
    Sketcher.Constraint("Horizontal", 3),
    Sketcher.Constraint("DistanceX", 1, 1, 1, 2, Q("22 in")),
    Sketcher.Constraint("DistanceY", 0, 2, 0, 1, Q("60 in")),
    Sketcher.Constraint("DistanceX", 0, 2, -1, 1, Q("24 in")),
    Sketcher.Constraint("DistanceY", 0, 2, -1, 1, Q("30 in")),
])
pocket5 = doc.addObject("PartDesign::Pocket", "Pocket004")
body.addObject(pocket5)
pocket5.Profile = sketch13
pocket5.Type = "ThroughAll"

# Sketch on XY plane
sketch14 = doc.addObject("Sketcher::SketchObject", "Sketch013")
body.addObject(sketch14)
sketch14.AttachmentSupport = (doc.XY_Plane, [""])
sketch14.MapMode = "FlatFace"
sketch14.addGeometry([
    Part.LineSegment(Vector(-660.4, -812.8, 0), Vector(-660.4, -762, 0)),  # 0
    Part.LineSegment(Vector(-660.4, -762, 0), Vector(-609.6, -762, 0)),  # 1
    Part.LineSegment(Vector(-609.6, -762, 0), Vector(-609.6, -812.8, 0)),  # 2
    Part.LineSegment(Vector(-609.6, -812.8, 0), Vector(-660.4, -812.8, 0)),  # 3
    Part.LineSegment(Vector(-50.8, -812.8, 0), Vector(-50.8, -762, 0)),  # 4
    Part.LineSegment(Vector(-50.8, -762, 0), Vector(0, -762, 0)),  # 5
    Part.LineSegment(Vector(0, -762, 0), Vector(0, -812.8, 0)),  # 6
    Part.LineSegment(Vector(0, -812.8, 0), Vector(-50.8, -812.8, 0)),  # 7
    Part.LineSegment(Vector(-660.4, 762, 0), Vector(-660.4, 812.8, 0)),  # 8
    Part.LineSegment(Vector(-660.4, 812.8, 0), Vector(-609.6, 812.8, 0)),  # 9
    Part.LineSegment(Vector(-609.6, 812.8, 0), Vector(-609.6, 762, 0)),  # 10
    Part.LineSegment(Vector(-609.6, 762, 0), Vector(-660.4, 762, 0)),  # 11
    Part.LineSegment(Vector(-50.8, 762, 0), Vector(-50.8, 812.8, 0)),  # 12
    Part.LineSegment(Vector(-50.8, 812.8, 0), Vector(0, 812.8, 0)),  # 13
    Part.LineSegment(Vector(0, 812.8, 0), Vector(0, 762, 0)),  # 14
    Part.LineSegment(Vector(0, 762, 0), Vector(-50.8, 762, 0)),  # 15
    Part.LineSegment(Vector(-50.8, 254, 0), Vector(-50.8, 304.8, 0)),  # 16
    Part.LineSegment(Vector(-50.8, 304.8, 0), Vector(0, 304.8, 0)),  # 17
    Part.LineSegment(Vector(0, 304.8, 0), Vector(0, 254, 0)),  # 18
    Part.LineSegment(Vector(0, 254, 0), Vector(-50.8, 254, 0)),  # 19
    Part.LineSegment(Vector(508, 254, 0), Vector(508, 304.8, 0)),  # 20
    Part.LineSegment(Vector(508, 304.8, 0), Vector(558.8, 304.8, 0)),  # 21
    Part.LineSegment(Vector(558.8, 304.8, 0), Vector(558.8, 254, 0)),  # 22
    Part.LineSegment(Vector(558.8, 254, 0), Vector(508, 254, 0)),  # 23
    Part.LineSegment(Vector(508, 762, 0), Vector(508, 812.8, 0)),  # 24
    Part.LineSegment(Vector(508, 812.8, 0), Vector(558.8, 812.8, 0)),  # 25
    Part.LineSegment(Vector(558.8, 812.8, 0), Vector(558.8, 762, 0)),  # 26
    Part.LineSegment(Vector(558.8, 762, 0), Vector(508, 762, 0)),  # 27
], False)
sketch14.addConstraint([
    Sketcher.Constraint("Coincident", 0, 2, 1, 1),
    Sketcher.Constraint("Coincident", 1, 2, 2, 1),
    Sketcher.Constraint("Coincident", 2, 2, 3, 1),
    Sketcher.Constraint("Coincident", 3, 2, 0, 1),
    Sketcher.Constraint("Coincident", 4, 2, 5, 1),
    Sketcher.Constraint("Coincident", 5, 2, 6, 1),
    Sketcher.Constraint("Coincident", 6, 2, 7, 1),
    Sketcher.Constraint("Coincident", 7, 2, 4, 1),
    Sketcher.Constraint("Coincident", 8, 2, 9, 1),
    Sketcher.Constraint("Coincident", 9, 2, 10, 1),
    Sketcher.Constraint("Coincident", 10, 2, 11, 1),
    Sketcher.Constraint("Coincident", 11, 2, 8, 1),
    Sketcher.Constraint("Coincident", 12, 2, 13, 1),
    Sketcher.Constraint("Coincident", 13, 2, 14, 1),
    Sketcher.Constraint("Coincident", 14, 2, 15, 1),
    Sketcher.Constraint("Coincident", 15, 2, 12, 1),
    Sketcher.Constraint("Coincident", 16, 2, 17, 1),
    Sketcher.Constraint("Coincident", 17, 2, 18, 1),
    Sketcher.Constraint("Coincident", 18, 2, 19, 1),
    Sketcher.Constraint("Coincident", 19, 2, 16, 1),
    Sketcher.Constraint("Coincident", 20, 2, 21, 1),
    Sketcher.Constraint("Coincident", 21, 2, 22, 1),
    Sketcher.Constraint("Coincident", 22, 2, 23, 1),
    Sketcher.Constraint("Coincident", 23, 2, 20, 1),
    Sketcher.Constraint("Coincident", 24, 2, 25, 1),
    Sketcher.Constraint("Coincident", 25, 2, 26, 1),
    Sketcher.Constraint("Coincident", 26, 2, 27, 1),
    Sketcher.Constraint("Coincident", 27, 2, 24, 1),
    Sketcher.Constraint("Vertical", 0),
    Sketcher.Constraint("Horizontal", 1),
    Sketcher.Constraint("Vertical", 2),
    Sketcher.Constraint("Horizontal", 3),
    Sketcher.Constraint("Vertical", 4),
    Sketcher.Constraint("Horizontal", 5),
    Sketcher.Constraint("Vertical", 6),
    Sketcher.Constraint("Horizontal", 7),
    Sketcher.Constraint("Vertical", 8),
    Sketcher.Constraint("Horizontal", 9),
    Sketcher.Constraint("Vertical", 10),
    Sketcher.Constraint("Horizontal", 11),
    Sketcher.Constraint("Vertical", 12),
    Sketcher.Constraint("Horizontal", 13),
    Sketcher.Constraint("Vertical", 14),
    Sketcher.Constraint("Horizontal", 15),
    Sketcher.Constraint("Vertical", 16),
    Sketcher.Constraint("Horizontal", 17),
    Sketcher.Constraint("Vertical", 18),
    Sketcher.Constraint("Horizontal", 19),
    Sketcher.Constraint("Vertical", 20),
    Sketcher.Constraint("Horizontal", 21),
    Sketcher.Constraint("Vertical", 22),
    Sketcher.Constraint("Horizontal", 23),
    Sketcher.Constraint("Vertical", 24),
    Sketcher.Constraint("Horizontal", 25),
    Sketcher.Constraint("Vertical", 26),
    Sketcher.Constraint("Horizontal", 27),
    Sketcher.Constraint("Symmetric", 6, 2, 13, 2, -1, 1),
    Sketcher.Constraint("Symmetric", 3, 2, 8, 2, -1),
    Sketcher.Constraint("Symmetric", 1, 2, 10, 2, -1),
    Sketcher.Constraint("Symmetric", 5, 2, 14, 2, -1),
    Sketcher.Constraint("PointOnObject", 17, 2, -2),
    Sketcher.Constraint("Horizontal", 1, 2, 4, 2),
    Sketcher.Constraint("Horizontal", 3, 2, 6, 2),
    Sketcher.Constraint("Horizontal", 17, 2, 20, 2),
    Sketcher.Constraint("Horizontal", 19, 2, 22, 2),
    Sketcher.Constraint("Horizontal", 13, 2, 24, 2),
    Sketcher.Constraint("Horizontal", 15, 2, 26, 2),
    Sketcher.Constraint("Vertical", 7, 2, 12, 2),
    Sketcher.Constraint("Vertical", 15, 2, 16, 2),
    Sketcher.Constraint("Vertical", 23, 2, 24, 2),
    Sketcher.Constraint("Vertical", 22, 2, 25, 2),
    Sketcher.Constraint("Equal", 3, 5),
    Sketcher.Constraint("Equal", 19, 21),
    Sketcher.Constraint("Equal", 27, 0),
    Sketcher.Constraint("Equal", 14, 16),
    Sketcher.Constraint("DistanceX", 1, 1, 1, 2, Q("2 in")),
    Sketcher.Constraint("DistanceX", 0, 2, -1, 1, Q("26 in")),
    Sketcher.Constraint("DistanceY", 0, 2, -1, 1, Q("30 in")),
    Sketcher.Constraint("DistanceY", -1, 1, 16, 2, Q("12 in")),
    Sketcher.Constraint("DistanceX", -1, 1, 20, 2, Q("20 in")),
])
pad9 = doc.addObject("PartDesign::Pad", "Pad008")
body.addObject(pad9)
pad9.Profile = sketch14
pad9.Length = Q("4 in")
pad9.Reversed = True

# Sketch on YZ plane
sketch15 = doc.addObject("Sketcher::SketchObject", "Sketch014")
body.addObject(sketch15)
sketch15.AttachmentSupport = (doc.YZ_Plane, [""])
sketch15.MapMode = "FlatFace"
sketch15.AttachmentOffset = App.Placement(Vector(0, 0, -24 * 25.4), App.Rotation())
sketch15.addGeometry([
    Part.LineSegment(Vector(-177.8, 50.8, 0), Vector(-177.8, 0, 0)),  # 0
    Part.LineSegment(Vector(-177.8, 0, 0), Vector(-127, 0, 0)),  # 1
    Part.LineSegment(Vector(-127, 0, 0), Vector(-127, 50.8, 0)),  # 2
    Part.LineSegment(Vector(-127, 50.8, 0), Vector(-177.8, 50.8, 0)),  # 3
    Part.LineSegment(Vector(25.4, 50.8, 0), Vector(25.4, 0, 0)),  # 4
    Part.LineSegment(Vector(25.4, 0, 0), Vector(76.2, 0, 0)),  # 5
    Part.LineSegment(Vector(76.2, 0, 0), Vector(76.2, 50.8, 0)),  # 6
    Part.LineSegment(Vector(76.2, 50.8, 0), Vector(25.4, 50.8, 0)),  # 7
], False)
sketch15.addConstraint([
    Sketcher.Constraint("Coincident", 0, 2, 1, 1),
    Sketcher.Constraint("Coincident", 1, 2, 2, 1),
    Sketcher.Constraint("Coincident", 2, 2, 3, 1),
    Sketcher.Constraint("Coincident", 3, 2, 0, 1),
    Sketcher.Constraint("Coincident", 4, 2, 5, 1),
    Sketcher.Constraint("Coincident", 5, 2, 6, 1),
    Sketcher.Constraint("Coincident", 6, 2, 7, 1),
    Sketcher.Constraint("Coincident", 7, 2, 4, 1),
    Sketcher.Constraint("Vertical", 0),
    Sketcher.Constraint("Horizontal", 1),
    Sketcher.Constraint("Vertical", 2),
    Sketcher.Constraint("Horizontal", 3),
    Sketcher.Constraint("Vertical", 4),
    Sketcher.Constraint("Horizontal", 5),
    Sketcher.Constraint("Vertical", 6),
    Sketcher.Constraint("Horizontal", 7),
    Sketcher.Constraint("PointOnObject", 0, 2, -1),
    Sketcher.Constraint("PointOnObject", 4, 2, -1),
    Sketcher.Constraint("Horizontal", 3, 2, 6, 2),
    Sketcher.Constraint("Equal", 3, 5),
    Sketcher.Constraint("Equal", 7, 0),
    Sketcher.Constraint("DistanceX", 1, 1, 1, 2, Q("2 in")),
    Sketcher.Constraint("DistanceX", 0, 2, -1, 1, Q("7 in")),
    Sketcher.Constraint("DistanceX", -1, 1, 4, 2, Q("1 in")),
])
pad10 = doc.addObject("PartDesign::Pad", "Pad009")
body.addObject(pad10)
pad10.Profile = sketch15
pad10.Type = "UpToLast"

# Sketch on XY plane
sketch16 = doc.addObject("Sketcher::SketchObject", "Sketch015")
body.addObject(sketch16)
sketch16.AttachmentSupport = (doc.XY_Plane, [""])
sketch16.MapMode = "FlatFace"
sketch16.AttachmentOffset = App.Placement(Vector(0, 0, 10 * 25.4), App.Rotation())
sketch16.addGeometry(Part.Circle(Vector(279.4, 533.4, 0), Vector(0, 0, 1), 228.6), False)
sketch16.addConstraint([
    Sketcher.Constraint("Diameter", 0, Q("18 in")),
    Sketcher.Constraint("DistanceX", -1, 1, 0, 3, Q("11 in")),
    Sketcher.Constraint("DistanceY", -1, 1, 0, 3, Q("21 in")),
])
pocket6 = doc.addObject("PartDesign::Pocket", "Pocket005")
body.addObject(pocket6)
pocket6.Profile = sketch16
pocket6.Length = Q("1.5 in")

doc.recompute()
